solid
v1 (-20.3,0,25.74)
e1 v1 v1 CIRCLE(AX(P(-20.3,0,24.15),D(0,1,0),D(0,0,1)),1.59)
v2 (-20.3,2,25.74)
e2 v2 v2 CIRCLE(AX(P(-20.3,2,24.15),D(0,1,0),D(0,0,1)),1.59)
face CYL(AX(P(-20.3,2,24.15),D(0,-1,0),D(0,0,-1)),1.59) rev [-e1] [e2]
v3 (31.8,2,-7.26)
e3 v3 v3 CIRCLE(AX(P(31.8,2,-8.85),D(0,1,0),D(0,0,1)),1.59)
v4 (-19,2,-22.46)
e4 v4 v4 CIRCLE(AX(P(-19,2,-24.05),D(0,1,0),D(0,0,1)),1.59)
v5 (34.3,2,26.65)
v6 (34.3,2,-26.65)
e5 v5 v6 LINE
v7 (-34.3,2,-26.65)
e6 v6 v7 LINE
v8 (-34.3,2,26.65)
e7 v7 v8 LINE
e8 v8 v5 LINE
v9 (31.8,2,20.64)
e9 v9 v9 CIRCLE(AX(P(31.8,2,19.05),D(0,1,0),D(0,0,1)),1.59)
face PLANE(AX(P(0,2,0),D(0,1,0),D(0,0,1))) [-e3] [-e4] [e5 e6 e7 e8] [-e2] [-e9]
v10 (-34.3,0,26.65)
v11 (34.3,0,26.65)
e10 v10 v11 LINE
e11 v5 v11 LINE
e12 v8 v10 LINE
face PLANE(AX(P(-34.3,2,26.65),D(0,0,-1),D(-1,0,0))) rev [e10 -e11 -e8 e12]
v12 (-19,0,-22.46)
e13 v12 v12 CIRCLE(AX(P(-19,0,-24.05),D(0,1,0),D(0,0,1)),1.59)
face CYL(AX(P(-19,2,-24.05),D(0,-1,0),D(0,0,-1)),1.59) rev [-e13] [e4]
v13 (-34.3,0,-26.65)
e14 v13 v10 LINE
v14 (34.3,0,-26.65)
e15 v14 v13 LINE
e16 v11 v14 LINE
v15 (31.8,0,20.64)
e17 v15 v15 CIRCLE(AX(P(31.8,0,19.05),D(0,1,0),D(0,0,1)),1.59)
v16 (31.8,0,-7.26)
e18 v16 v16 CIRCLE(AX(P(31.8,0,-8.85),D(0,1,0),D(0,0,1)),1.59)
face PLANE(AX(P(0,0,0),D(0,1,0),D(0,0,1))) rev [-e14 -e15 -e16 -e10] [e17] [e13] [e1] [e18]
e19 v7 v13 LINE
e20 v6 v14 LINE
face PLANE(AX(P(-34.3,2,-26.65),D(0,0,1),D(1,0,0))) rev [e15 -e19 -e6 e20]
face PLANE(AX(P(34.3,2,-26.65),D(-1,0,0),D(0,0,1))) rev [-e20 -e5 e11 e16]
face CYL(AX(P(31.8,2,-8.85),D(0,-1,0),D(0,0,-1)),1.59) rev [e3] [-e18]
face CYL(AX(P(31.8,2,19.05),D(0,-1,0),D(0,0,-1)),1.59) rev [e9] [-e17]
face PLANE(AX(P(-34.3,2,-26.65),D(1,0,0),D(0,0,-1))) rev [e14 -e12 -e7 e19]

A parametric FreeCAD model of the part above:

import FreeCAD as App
import Part
import Sketcher


def add_polygon(sketch, points):
    """Adds a closed chain of lines whose ends are joined by coincident constraints."""
    first, n = sketch.GeometryCount, len(points)
    for a, b in zip(points, points[1:] + points[:1]):
        sketch.addGeometry(Part.LineSegment(App.Vector(*a, 0), App.Vector(*b, 0)), False)
    for i in range(n):
        sketch.addConstraint(Sketcher.Constraint("Coincident", first + i, 2, first + (i + 1) % n, 1))

doc = App.newDocument("Part")
body = doc.addObject("PartDesign::Body", "Body")

# Sketch on XZ plane
sketch1 = doc.addObject("Sketcher::SketchObject", "Sketch")
body.addObject(sketch1)
sketch1.AttachmentSupport = (doc.XZ_Plane, [""])
sketch1.MapMode = "FlatFace"
add_polygon(sketch1, [(-34.3, -26.6), (-34.3, 26.6), (34.3, 26.6), (34.3, -26.6)])  # lines 0-3
sketch1.addGeometry(Part.Circle(App.Vector(-20.3, 24.1, 0), App.Vector(0, 0, 1), 1.6), False)  # 4
sketch1.addGeometry(Part.Circle(App.Vector(31.8, 19.1, 0), App.Vector(0, 0, 1), 1.6), False)  # 5
sketch1.addGeometry(Part.Circle(App.Vector(-19, -24.1, 0), App.Vector(0, 0, 1), 1.6), False)  # 6
sketch1.addGeometry(Part.Circle(App.Vector(31.8, -8.8, 0), App.Vector(0, 0, 1), 1.6), False)  # 7
sketch1.addConstraint(Sketcher.Constraint("Vertical", 0))
sketch1.addConstraint(Sketcher.Constraint("Horizontal", 1))
sketch1.addConstraint(Sketcher.Constraint("Vertical", 2))
sketch1.addConstraint(Sketcher.Constraint("Horizontal", 3))
sketch1.addConstraint(Sketcher.Constraint("Equal", 4, 5))
sketch1.addConstraint(Sketcher.Constraint("Equal", 5, 6))
sketch1.addConstraint(Sketcher.Constraint("Equal", 6, 7))
sketch1.addConstraint(Sketcher.Constraint("Symmetric", 0, 2, 2, 2, -1, 1))
sketch1.addConstraint(Sketcher.Constraint("Vertical", 5, 3, 7, 3))
sketch1.addConstraint(Sketcher.Constraint("Diameter", 4, 3.18))
sketch1.addConstraint(Sketcher.Constraint("DistanceX", 1, 1, 1, 2, 68.6))
sketch1.addConstraint(Sketcher.Constraint("DistanceY", 0, 1, 0, 2, 53.3))
sketch1.addConstraint(Sketcher.Constraint("DistanceX", 6, 3, -1, 1, 19.0))
sketch1.addConstraint(Sketcher.Constraint("DistanceY", 7, 3, 4, 3, 33.0))
sketch1.addConstraint(Sketcher.Constraint("DistanceX", 0, 2, 4, 3, 14.0))
sketch1.addConstraint(Sketcher.Constraint("DistanceX", -1, 1, 5, 3, 31.8))
sketch1.addConstraint(Sketcher.Constraint("DistanceY", 5, 3, 4, 3, 5.1))
sketch1.addConstraint(Sketcher.Constraint("DistanceY", 6, 3, 4, 3, 48.2))
sketch1.addConstraint(Sketcher.Constraint("DistanceY", 4, 3, 0, 2, 2.5))
pad1 = doc.addObject("PartDesign::Pad", "Pad")
body.addObject(pad1)
pad1.Profile = sketch1
pad1.Length = 2
pad1.Reversed = True

doc.recompute()
